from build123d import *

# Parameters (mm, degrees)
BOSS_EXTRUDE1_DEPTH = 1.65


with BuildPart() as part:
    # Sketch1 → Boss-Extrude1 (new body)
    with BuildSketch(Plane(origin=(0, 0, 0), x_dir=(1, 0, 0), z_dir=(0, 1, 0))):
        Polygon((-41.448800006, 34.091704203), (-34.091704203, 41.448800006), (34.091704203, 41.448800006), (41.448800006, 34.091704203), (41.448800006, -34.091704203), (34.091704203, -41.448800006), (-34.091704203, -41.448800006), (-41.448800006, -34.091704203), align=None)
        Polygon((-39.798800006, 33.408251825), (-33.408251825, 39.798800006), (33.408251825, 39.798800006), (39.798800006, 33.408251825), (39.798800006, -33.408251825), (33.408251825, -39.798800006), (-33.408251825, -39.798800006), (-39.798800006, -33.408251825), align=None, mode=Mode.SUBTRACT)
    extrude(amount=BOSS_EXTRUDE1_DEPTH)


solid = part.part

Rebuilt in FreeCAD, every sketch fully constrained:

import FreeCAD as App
import Part
import Sketcher
from FreeCAD import Vector
Q = App.Units.Quantity

doc = App.newDocument("Part")
body = doc.addObject("PartDesign::Body", "Body")

# Sketch on XZ plane
sketch1 = body.newObject("Sketcher::SketchObject", "Sketch")
sketch1.AttachmentSupport = (doc.getObject("XZ_Plane"), [""])
sketch1.MapMode = "FlatFace"
sketch1.addGeometry([
    Part.LineSegment(Vector(-34, -41, 0), Vector(-41, -34, 0)),  # 0
    Part.LineSegment(Vector(-41, -34, 0), Vector(-41, 34, 0)),  # 1
    Part.LineSegment(Vector(-41, 34, 0), Vector(-34, 41, 0)),  # 2
    Part.LineSegment(Vector(-34, 41, 0), Vector(34, 41, 0)),  # 3
    Part.LineSegment(Vector(34, 41, 0), Vector(41, 34, 0)),  # 4
    Part.LineSegment(Vector(41, 34, 0), Vector(41, -34, 0)),  # 5
    Part.LineSegment(Vector(41, -34, 0), Vector(34, -41, 0)),  # 6
    Part.LineSegment(Vector(34, -41, 0), Vector(-34, -41, 0)),  # 7
    Part.LineSegment(Vector(-40, -33, 0), Vector(-33, -40, 0)),  # 8
    Part.LineSegment(Vector(-33, -40, 0), Vector(33, -40, 0)),  # 9
    Part.LineSegment(Vector(33, -40, 0), Vector(40, -33, 0)),  # 10
    Part.LineSegment(Vector(40, -33, 0), Vector(40, 33, 0)),  # 11
    Part.LineSegment(Vector(40, 33, 0), Vector(33, 40, 0)),  # 12
    Part.LineSegment(Vector(33, 40, 0), Vector(-33, 40, 0)),  # 13
    Part.LineSegment(Vector(-33, 40, 0), Vector(-40, 33, 0)),  # 14
    Part.LineSegment(Vector(-40, 33, 0), Vector(-40, -33, 0)),  # 15
], False)
sketch1.addConstraint([
    Sketcher.Constraint("Coincident", 0, 2, 1, 1),
    Sketcher.Constraint("Coincident", 1, 2, 2, 1),
    Sketcher.Constraint("Coincident", 2, 2, 3, 1),
    Sketcher.Constraint("Coincident", 3, 2, 4, 1),
    Sketcher.Constraint("Coincident", 4, 2, 5, 1),
    Sketcher.Constraint("Coincident", 5, 2, 6, 1),
    Sketcher.Constraint("Coincident", 6, 2, 7, 1),
    Sketcher.Constraint("Coincident", 7, 2, 0, 1),
    Sketcher.Constraint("Coincident", 8, 2, 9, 1),
    Sketcher.Constraint("Coincident", 9, 2, 10, 1),
    Sketcher.Constraint("Coincident", 10, 2, 11, 1),
    Sketcher.Constraint("Coincident", 11, 2, 12, 1),
    Sketcher.Constraint("Coincident", 12, 2, 13, 1),
    Sketcher.Constraint("Coincident", 13, 2, 14, 1),
    Sketcher.Constraint("Coincident", 14, 2, 15, 1),
    Sketcher.Constraint("Coincident", 15, 2, 8, 1),
    Sketcher.Constraint("Vertical", 1),
    Sketcher.Constraint("Horizontal", 3),
    Sketcher.Constraint("Vertical", 5),
    Sketcher.Constraint("Horizontal", 7),
    Sketcher.Constraint("Horizontal", 9),
    Sketcher.Constraint("Vertical", 11),
    Sketcher.Constraint("Horizontal", 13),
    Sketcher.Constraint("Vertical", 15),
    Sketcher.Constraint("Symmetric", 0, 2, 4, 2, -1, 1),
    Sketcher.Constraint("Symmetric", 2, 2, 6, 2, -1, 1),
    Sketcher.Constraint("Symmetric", 8, 2, 12, 2, -1, 1),
    Sketcher.Constraint("Symmetric", 10, 2, 14, 2, -1, 1),
    Sketcher.Constraint("Perpendicular", 0, 2),
    Sketcher.Constraint("Perpendicular", 2, 4),
    Sketcher.Constraint("Perpendicular", 4, 6),
    Sketcher.Constraint("Perpendicular", 6, 8),
    Sketcher.Constraint("Perpendicular", 8, 10),
    Sketcher.Constraint("Perpendicular", 10, 12),
    Sketcher.Constraint("Perpendicular", 12, 14),
    Sketcher.Constraint("Horizontal", 1, 2, 4, 2),
    Sketcher.Constraint("Horizontal", 11, 2, 14, 2),
    Sketcher.Constraint("Vertical", 3, 2, 6, 2),
    Sketcher.Constraint("Equal", 7, 1),
    Sketcher.Constraint("Equal", 13, 11),
    Sketcher.Constraint("DistanceY", 7, 2, 8, 2, Q("1.65 mm")),
    Sketcher.Constraint("Distance", 8, Q("9.0376 mm")),
    Sketcher.Constraint("DistanceX", 3, 1, 3, 2, Q("68.183408 mm")),
    Sketcher.Constraint("DistanceX", 0, 2, -1, 1, Q("41.4488 mm")),
])
pad1 = body.newObject("PartDesign::Pad", "Pad")
pad1.Profile = sketch1
pad1.Length = 1.65
pad1.Reversed = True

doc.recompute()
